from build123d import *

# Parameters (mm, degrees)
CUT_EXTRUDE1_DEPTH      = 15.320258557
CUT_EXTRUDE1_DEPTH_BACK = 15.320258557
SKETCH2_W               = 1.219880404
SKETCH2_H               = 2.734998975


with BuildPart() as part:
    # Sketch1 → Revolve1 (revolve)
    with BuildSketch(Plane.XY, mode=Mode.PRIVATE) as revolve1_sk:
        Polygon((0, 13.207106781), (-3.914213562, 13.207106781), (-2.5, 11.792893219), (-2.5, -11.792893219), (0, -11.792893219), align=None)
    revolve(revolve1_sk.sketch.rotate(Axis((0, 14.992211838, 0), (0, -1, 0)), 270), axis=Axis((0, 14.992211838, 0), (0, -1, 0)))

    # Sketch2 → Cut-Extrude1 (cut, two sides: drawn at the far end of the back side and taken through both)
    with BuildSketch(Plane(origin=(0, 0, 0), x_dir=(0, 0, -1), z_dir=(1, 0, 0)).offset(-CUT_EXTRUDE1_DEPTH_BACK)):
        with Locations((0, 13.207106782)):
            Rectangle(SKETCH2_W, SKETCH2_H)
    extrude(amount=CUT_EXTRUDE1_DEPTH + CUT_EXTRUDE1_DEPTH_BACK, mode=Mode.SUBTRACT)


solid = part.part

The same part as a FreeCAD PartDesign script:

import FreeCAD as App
import Part
import Sketcher
from FreeCAD import Vector
Q = App.Units.Quantity


def add_polygon(sketch, points):
    """Adds a closed chain of lines whose ends are joined by coincident constraints."""
    first, n = sketch.GeometryCount, len(points)
    for a, b in zip(points, points[1:] + points[:1]):
        sketch.addGeometry(Part.LineSegment(App.Vector(*a, 0), App.Vector(*b, 0)), False)
    for i in range(n):
        sketch.addConstraint(Sketcher.Constraint("Coincident", first + i, 2, first + (i + 1) % n, 1))

doc = App.newDocument("Part")
params = doc.addObject("Spreadsheet::Sheet", "Params")
for row, (alias, value) in enumerate([
    ("sketch1_height", "25 mm"),
    ("sketch1_length", "2 mm"),
    ("sketch1_width", "2.5 mm"),
    ("revolution_angle", "360 deg"),
], start=1):
    params.set(f"A{row}", alias)
    params.set(f"B{row}", "=" + value)
    params.setAlias(f"B{row}", alias)

body = doc.addObject("PartDesign::Body", "Body")

# Sketch on XY plane
sketch1 = doc.addObject("Sketcher::SketchObject", "Sketch")
body.addObject(sketch1)
sketch1.AttachmentSupport = (doc.XY_Plane, [""])
sketch1.MapMode = "FlatFace"
add_polygon(sketch1, [(0, 13.2), (-3.9, 13.2), (-2.5, 11.8), (-2.5, -11.8), (0, -11.8)])  # lines 0-4
sketch1.addConstraint(Sketcher.Constraint("Horizontal", 0))
sketch1.addConstraint(Sketcher.Constraint("Vertical", 2))
sketch1.addConstraint(Sketcher.Constraint("Horizontal", 3))
sketch1.addConstraint(Sketcher.Constraint("Vertical", 4))
sketch1.addConstraint(Sketcher.Constraint("PointOnObject", 3, 2, -2))
sketch1.addConstraint(Sketcher.Constraint("DistanceY", 4, 1, 4, 2, Q("25 mm")))
sketch1.addConstraint(Sketcher.Constraint("Angle", 1, Q("-45 deg")))
sketch1.addConstraint(Sketcher.Constraint("Distance", 1, Q("2 mm")))
sketch1.addConstraint(Sketcher.Constraint("DistanceX", 3, 1, 3, 2, Q("2.5 mm")))
sketch1.addConstraint(Sketcher.Constraint("DistanceY", -1, 1, 0, 2, Q("13.207107 mm")))
sketch1.setExpression("Constraints[10]", "Params.sketch1_height")
sketch1.setExpression("Constraints[12]", "Params.sketch1_length")
sketch1.setExpression("Constraints[13]", "Params.sketch1_width")
revolution = doc.addObject("PartDesign::Revolution", "Revolution")
body.addObject(revolution)
revolution.Profile = sketch1
revolution.ReferenceAxis = (sketch1, ["V_Axis"])
revolution.setExpression("Angle", "Params.revolution_angle")

# Sketch on YZ plane
sketch2 = doc.addObject("Sketcher::SketchObject", "Sketch001")
body.addObject(sketch2)
sketch2.AttachmentSupport = (doc.YZ_Plane, [""])
sketch2.MapMode = "FlatFace"
add_polygon(sketch2, [(14.6, 0.6), (11.8, 0.6), (11.8, -0.6), (14.6, -0.6)])  # lines 0-3
sketch2.addConstraint(Sketcher.Constraint("Horizontal", 0))
sketch2.addConstraint(Sketcher.Constraint("Vertical", 1))
sketch2.addConstraint(Sketcher.Constraint("Horizontal", 2))
sketch2.addConstraint(Sketcher.Constraint("Vertical", 3))
sketch2.addConstraint(Sketcher.Constraint("DistanceX", 0, 2, 0, 1, Q("2.734999 mm")))
sketch2.addConstraint(Sketcher.Constraint("DistanceY", 1, 2, 1, 1, Q("1.21988 mm")))
sketch2.addConstraint(Sketcher.Constraint("DistanceY", -1, 1, 0, 2, Q("0.60994 mm")))
sketch2.addConstraint(Sketcher.Constraint("DistanceX", -1, 1, 0, 2, Q("11.839607 mm")))
pocket1 = doc.addObject("PartDesign::Pocket", "Pocket")
body.addObject(pocket1)
pocket1.Profile = sketch2
pocket1.Type = "ThroughAll"
pocket1.Midplane = True

doc.recompute()
